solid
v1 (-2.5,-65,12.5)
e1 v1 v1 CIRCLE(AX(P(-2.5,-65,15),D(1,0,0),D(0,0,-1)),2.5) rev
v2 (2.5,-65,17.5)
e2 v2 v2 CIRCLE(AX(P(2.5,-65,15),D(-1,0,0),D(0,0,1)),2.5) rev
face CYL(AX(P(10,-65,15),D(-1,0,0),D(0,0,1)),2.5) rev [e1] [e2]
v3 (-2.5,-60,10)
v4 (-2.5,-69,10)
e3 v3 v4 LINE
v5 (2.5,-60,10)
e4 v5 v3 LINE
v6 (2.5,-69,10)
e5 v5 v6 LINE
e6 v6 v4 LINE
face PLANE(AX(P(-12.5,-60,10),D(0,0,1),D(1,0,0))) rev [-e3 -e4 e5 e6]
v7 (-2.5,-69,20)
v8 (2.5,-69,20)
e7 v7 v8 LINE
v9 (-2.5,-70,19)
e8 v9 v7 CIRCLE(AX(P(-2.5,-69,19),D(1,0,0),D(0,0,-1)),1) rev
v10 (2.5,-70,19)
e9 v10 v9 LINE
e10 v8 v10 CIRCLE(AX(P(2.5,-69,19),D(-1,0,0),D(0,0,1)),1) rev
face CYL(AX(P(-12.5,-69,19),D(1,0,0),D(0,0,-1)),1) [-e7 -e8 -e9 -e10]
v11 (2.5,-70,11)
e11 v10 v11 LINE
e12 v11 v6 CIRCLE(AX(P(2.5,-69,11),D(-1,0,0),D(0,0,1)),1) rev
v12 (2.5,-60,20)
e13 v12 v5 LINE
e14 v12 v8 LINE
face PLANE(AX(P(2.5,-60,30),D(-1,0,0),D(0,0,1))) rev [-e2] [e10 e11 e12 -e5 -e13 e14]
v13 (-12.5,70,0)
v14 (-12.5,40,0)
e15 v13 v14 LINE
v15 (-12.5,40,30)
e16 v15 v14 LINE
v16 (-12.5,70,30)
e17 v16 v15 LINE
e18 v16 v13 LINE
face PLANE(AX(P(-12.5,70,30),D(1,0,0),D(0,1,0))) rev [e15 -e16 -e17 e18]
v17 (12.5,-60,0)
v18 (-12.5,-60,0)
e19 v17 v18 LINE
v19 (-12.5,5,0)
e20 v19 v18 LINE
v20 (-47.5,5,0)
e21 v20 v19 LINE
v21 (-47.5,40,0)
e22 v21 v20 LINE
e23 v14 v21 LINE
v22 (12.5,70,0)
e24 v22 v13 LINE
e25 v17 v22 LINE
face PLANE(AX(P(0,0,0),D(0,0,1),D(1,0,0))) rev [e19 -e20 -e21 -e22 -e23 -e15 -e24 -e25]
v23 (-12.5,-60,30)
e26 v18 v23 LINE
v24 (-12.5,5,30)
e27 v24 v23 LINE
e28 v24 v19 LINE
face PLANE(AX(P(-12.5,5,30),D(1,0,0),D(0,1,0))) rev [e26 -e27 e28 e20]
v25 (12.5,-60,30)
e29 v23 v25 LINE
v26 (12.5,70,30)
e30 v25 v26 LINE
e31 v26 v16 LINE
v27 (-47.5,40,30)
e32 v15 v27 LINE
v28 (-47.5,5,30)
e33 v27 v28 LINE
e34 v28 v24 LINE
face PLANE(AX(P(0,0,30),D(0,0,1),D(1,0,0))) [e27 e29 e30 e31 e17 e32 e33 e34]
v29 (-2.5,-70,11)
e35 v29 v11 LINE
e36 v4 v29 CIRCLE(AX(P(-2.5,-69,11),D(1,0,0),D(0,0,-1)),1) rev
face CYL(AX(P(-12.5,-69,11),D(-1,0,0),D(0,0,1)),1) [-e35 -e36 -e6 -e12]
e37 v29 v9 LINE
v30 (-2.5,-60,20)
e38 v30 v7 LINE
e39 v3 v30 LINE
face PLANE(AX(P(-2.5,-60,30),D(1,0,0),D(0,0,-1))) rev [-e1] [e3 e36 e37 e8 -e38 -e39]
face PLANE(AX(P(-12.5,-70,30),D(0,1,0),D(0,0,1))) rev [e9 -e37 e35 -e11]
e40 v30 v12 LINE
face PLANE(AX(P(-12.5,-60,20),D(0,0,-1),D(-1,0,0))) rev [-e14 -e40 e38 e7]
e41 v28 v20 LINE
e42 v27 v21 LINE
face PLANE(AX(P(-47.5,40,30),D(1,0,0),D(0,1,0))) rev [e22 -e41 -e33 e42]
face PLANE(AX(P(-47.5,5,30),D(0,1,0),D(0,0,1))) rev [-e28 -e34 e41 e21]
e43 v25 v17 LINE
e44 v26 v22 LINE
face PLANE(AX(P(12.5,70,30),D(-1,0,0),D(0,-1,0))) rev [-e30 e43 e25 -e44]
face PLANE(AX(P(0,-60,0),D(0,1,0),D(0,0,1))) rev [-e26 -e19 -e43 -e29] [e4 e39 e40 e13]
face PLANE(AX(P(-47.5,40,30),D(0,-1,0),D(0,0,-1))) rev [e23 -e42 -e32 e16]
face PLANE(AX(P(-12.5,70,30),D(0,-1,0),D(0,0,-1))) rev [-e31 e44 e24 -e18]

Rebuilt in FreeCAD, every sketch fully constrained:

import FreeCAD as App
import Part
import Sketcher
from FreeCAD import Vector


def edges_at(feature, points):
    """Names of the edges that pass closest to the given points."""
    edges = feature.Shape.Edges
    near = lambda p: min(range(len(edges)), key=lambda i: edges[i].distToShape(Part.Vertex(*p))[0])
    return sorted({f"Edge{near(p) + 1}" for p in points})


def add_polygon(sketch, points):
    """Adds a closed chain of lines whose ends are joined by coincident constraints."""
    first, n = sketch.GeometryCount, len(points)
    for a, b in zip(points, points[1:] + points[:1]):
        sketch.addGeometry(Part.LineSegment(App.Vector(*a, 0), App.Vector(*b, 0)), False)
    for i in range(n):
        sketch.addConstraint(Sketcher.Constraint("Coincident", first + i, 2, first + (i + 1) % n, 1))

doc = App.newDocument("Part")
params = doc.addObject("Spreadsheet::Sheet", "Params")
for row, (alias, value) in enumerate([
    ("sketch1_width", "25 mm"),
    ("sketch1_width2", "35 mm"),
    ("sketch1_height", "30 mm"),
    ("sketch1_height2", "75 mm"),
    ("pad1_length", "30 mm"),
    ("sketch2_width", "25 mm"),
    ("sketch2_width2", "5 mm"),
    ("sketch2_height", "30 mm"),
    ("sketch2_height2", "10 mm"),
    ("pocket1_length", "10 mm"),
    ("sketch3_diameter", "5 mm"),
    ("fillet_radius", "1 mm"),
], start=1):
    params.set(f"A{row}", alias)
    params.set(f"B{row}", "=" + value)
    params.setAlias(f"B{row}", alias)

body = doc.addObject("PartDesign::Body", "Body")

# Sketch on XY plane
sketch1 = body.newObject("Sketcher::SketchObject", "Sketch")
sketch1.AttachmentSupport = (doc.getObject("XY_Plane"), [""])
sketch1.MapMode = "FlatFace"
add_polygon(sketch1, [(12.5, 70), (-12.5, 70), (-12.5, 40), (-47.5, 40), (-47.5, 5), (-12.5, 5), (-12.5, -70), (12.5, -70)])  # lines 0-7
sketch1.addConstraint([
    Sketcher.Constraint("Horizontal", 0),
    Sketcher.Constraint("Vertical", 1),
    Sketcher.Constraint("Horizontal", 2),
    Sketcher.Constraint("Vertical", 3),
    Sketcher.Constraint("Horizontal", 4),
    Sketcher.Constraint("Vertical", 5),
    Sketcher.Constraint("Horizontal", 6),
    Sketcher.Constraint("Vertical", 7),
    Sketcher.Constraint("Symmetric", 0, 2, 6, 2, -1, 1),
    Sketcher.Constraint("Vertical", 1, 2, 4, 2),
    Sketcher.Constraint("Equal", 4, 3),
    Sketcher.Constraint("DistanceX", 0, 2, 0, 1, 25.0),
    Sketcher.Constraint("DistanceX", 2, 2, 2, 1, 35.0),
    Sketcher.Constraint("DistanceY", 1, 2, 1, 1, 30.0),
    Sketcher.Constraint("DistanceY", 5, 2, 5, 1, 75.0),
])
sketch1.setExpression("Constraints[19]", "Params.sketch1_width")
sketch1.setExpression("Constraints[20]", "Params.sketch1_width2")
sketch1.setExpression("Constraints[21]", "Params.sketch1_height")
sketch1.setExpression("Constraints[22]", "Params.sketch1_height2")
pad1 = body.newObject("PartDesign::Pad", "Pad")
pad1.Profile = sketch1
pad1.setExpression("Length", "Params.pad1_length")

# Sketch on XZ plane
sketch2 = body.newObject("Sketcher::SketchObject", "Sketch001")
sketch2.AttachmentSupport = (doc.getObject("XZ_Plane"), [""])
sketch2.MapMode = "FlatFace"
sketch2.AttachmentOffset = App.Placement(Vector(0, 0, 70), App.Rotation())
add_polygon(sketch2, [(-12.5, 0), (-12.5, 30), (12.5, 30), (12.5, 0)])  # lines 0-3
add_polygon(sketch2, [(2.5, 20), (-2.5, 20), (-2.5, 10), (2.5, 10)])  # lines 4-7
sketch2.addConstraint([
    Sketcher.Constraint("Vertical", 0),
    Sketcher.Constraint("Horizontal", 1),
    Sketcher.Constraint("Vertical", 2),
    Sketcher.Constraint("Horizontal", 3),
    Sketcher.Constraint("Horizontal", 4),
    Sketcher.Constraint("Vertical", 5),
    Sketcher.Constraint("Horizontal", 6),
    Sketcher.Constraint("Vertical", 7),
    Sketcher.Constraint("Symmetric", 2, 2, 3, 2, -1, 1),
    Sketcher.Constraint("DistanceX", 1, 1, 1, 2, 25.0),
    Sketcher.Constraint("DistanceX", 4, 2, 4, 1, 5.0),
    Sketcher.Constraint("DistanceY", 0, 1, 0, 2, 30.0),
    Sketcher.Constraint("DistanceY", 5, 2, 5, 1, 10.0),
    Sketcher.Constraint("DistanceY", -1, 1, 4, 2, 20.0),
    Sketcher.Constraint("DistanceX", 0, 2, 4, 2, 10.0),
])
sketch2.setExpression("Constraints[17]", "Params.sketch2_width")
sketch2.setExpression("Constraints[18]", "Params.sketch2_width2")
sketch2.setExpression("Constraints[19]", "Params.sketch2_height")
sketch2.setExpression("Constraints[20]", "Params.sketch2_height2")
pocket1 = body.newObject("PartDesign::Pocket", "Pocket")
pocket1.Profile = sketch2
pocket1.setExpression("Length", "Params.pocket1_length")

# Sketch on YZ plane
sketch3 = body.newObject("Sketcher::SketchObject", "Sketch002")
sketch3.AttachmentSupport = (doc.getObject("YZ_Plane"), [""])
sketch3.MapMode = "FlatFace"
sketch3.addGeometry(Part.Circle(Vector(-65, 15, 0), Vector(0, 0, 1), 2.5), False)
sketch3.addConstraint([
    Sketcher.Constraint("Diameter", 0, 5.0),
    Sketcher.Constraint("DistanceX", 0, 3, -1, 1, 65.0),
    Sketcher.Constraint("DistanceY", -1, 1, 0, 3, 15.0),
])
sketch3.setExpression("Constraints[0]", "Params.sketch3_diameter")
pocket2 = body.newObject("PartDesign::Pocket", "Pocket001")
pocket2.Profile = sketch3
pocket2.Type = "ThroughAll"
pocket2.Midplane = True
doc.recompute()

fillet = body.newObject("PartDesign::Fillet", "Fillet")
fillet.Base = (pocket2, edges_at(pocket2, [(0, -70, 10), (0, -70, 20)]))
fillet.setExpression("Radius", "Params.fillet_radius")

doc.recompute()
